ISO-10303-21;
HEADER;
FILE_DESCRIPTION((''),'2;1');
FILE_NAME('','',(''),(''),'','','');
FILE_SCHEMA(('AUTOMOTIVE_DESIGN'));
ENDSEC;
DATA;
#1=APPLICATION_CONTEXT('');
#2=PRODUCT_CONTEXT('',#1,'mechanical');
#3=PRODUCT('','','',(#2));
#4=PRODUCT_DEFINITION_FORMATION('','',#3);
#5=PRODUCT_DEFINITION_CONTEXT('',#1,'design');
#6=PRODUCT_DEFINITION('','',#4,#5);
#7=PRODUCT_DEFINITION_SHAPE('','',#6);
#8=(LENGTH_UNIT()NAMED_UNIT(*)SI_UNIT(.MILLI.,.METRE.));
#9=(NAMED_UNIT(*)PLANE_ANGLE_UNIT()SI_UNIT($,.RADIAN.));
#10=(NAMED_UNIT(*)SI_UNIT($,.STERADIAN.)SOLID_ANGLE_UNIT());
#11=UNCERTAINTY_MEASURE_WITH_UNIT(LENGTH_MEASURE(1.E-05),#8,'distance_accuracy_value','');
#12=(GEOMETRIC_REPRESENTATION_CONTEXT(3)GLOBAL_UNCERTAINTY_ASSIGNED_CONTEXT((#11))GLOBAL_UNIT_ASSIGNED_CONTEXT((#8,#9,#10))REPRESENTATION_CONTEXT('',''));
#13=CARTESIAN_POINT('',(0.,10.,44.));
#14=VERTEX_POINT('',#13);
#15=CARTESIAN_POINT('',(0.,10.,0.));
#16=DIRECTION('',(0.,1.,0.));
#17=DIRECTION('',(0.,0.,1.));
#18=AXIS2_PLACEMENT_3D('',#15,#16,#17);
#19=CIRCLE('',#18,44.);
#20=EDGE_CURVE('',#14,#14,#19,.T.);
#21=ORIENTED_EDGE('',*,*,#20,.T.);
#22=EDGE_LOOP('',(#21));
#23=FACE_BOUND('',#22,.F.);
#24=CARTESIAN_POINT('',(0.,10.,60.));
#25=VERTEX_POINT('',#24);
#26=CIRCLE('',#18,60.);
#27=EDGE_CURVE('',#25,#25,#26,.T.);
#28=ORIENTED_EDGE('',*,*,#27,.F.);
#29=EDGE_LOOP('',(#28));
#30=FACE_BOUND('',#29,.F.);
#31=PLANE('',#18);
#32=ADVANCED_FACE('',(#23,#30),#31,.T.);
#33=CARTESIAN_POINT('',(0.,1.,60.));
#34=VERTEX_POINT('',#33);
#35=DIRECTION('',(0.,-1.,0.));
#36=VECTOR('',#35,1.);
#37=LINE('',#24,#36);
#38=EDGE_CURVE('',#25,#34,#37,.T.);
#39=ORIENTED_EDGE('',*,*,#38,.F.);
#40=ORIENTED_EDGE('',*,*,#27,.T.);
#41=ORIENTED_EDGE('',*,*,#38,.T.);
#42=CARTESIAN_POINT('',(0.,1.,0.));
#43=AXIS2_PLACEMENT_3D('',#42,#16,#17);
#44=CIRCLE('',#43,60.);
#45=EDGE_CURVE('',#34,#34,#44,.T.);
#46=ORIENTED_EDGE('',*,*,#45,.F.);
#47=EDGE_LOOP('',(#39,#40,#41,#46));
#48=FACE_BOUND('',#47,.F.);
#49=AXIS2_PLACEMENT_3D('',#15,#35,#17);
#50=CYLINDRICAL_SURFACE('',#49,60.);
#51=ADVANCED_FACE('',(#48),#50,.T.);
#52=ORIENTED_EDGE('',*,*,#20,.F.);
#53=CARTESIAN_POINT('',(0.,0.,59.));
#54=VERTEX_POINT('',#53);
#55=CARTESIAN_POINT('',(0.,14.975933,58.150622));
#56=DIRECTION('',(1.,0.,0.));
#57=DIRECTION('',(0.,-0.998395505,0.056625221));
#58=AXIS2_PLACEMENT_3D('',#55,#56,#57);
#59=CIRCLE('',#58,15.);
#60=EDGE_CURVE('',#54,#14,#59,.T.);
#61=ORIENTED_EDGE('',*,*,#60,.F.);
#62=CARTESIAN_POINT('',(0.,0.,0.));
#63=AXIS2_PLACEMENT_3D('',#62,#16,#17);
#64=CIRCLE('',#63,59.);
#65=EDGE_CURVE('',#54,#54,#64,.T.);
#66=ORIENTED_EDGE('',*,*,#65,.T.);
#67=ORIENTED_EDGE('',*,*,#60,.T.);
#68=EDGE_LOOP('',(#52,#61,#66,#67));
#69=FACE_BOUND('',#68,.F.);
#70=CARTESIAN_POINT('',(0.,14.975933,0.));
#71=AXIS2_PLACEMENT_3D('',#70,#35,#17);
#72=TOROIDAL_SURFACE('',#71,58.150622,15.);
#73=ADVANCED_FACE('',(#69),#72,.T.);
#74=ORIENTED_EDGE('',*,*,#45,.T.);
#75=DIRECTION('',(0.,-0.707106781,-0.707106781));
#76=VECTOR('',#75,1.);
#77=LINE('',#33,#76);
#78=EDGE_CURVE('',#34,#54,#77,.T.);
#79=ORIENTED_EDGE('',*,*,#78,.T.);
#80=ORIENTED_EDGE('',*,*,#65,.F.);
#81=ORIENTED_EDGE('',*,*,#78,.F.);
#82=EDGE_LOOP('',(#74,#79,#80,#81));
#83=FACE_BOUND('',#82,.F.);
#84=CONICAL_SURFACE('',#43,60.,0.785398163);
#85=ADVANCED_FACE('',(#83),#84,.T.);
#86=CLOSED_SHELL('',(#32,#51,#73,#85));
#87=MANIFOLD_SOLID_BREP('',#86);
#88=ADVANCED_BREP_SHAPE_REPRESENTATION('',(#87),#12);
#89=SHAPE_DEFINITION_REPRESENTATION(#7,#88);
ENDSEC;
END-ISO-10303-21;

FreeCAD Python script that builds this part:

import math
import FreeCAD as App
import Part
import Sketcher

V = App.Vector
Q = App.Units.Quantity

doc = App.newDocument("Part")
body = doc.addObject("PartDesign::Body", "Body")

# Sketch on YZ plane
sketch1 = body.newObject("Sketcher::SketchObject", "Sketch")
sketch1.AttachmentSupport = (doc.getObject("YZ_Plane"), [""])
sketch1.MapMode = "FlatFace"
sketch1.addGeometry([
    Part.LineSegment(V(1, 60, 0), V(0, 59, 0)),
    Part.ArcOfCircle(Part.Circle(V(15, 58.2, 0), V(0, 0, 1), 15), math.radians(177), math.radians(251)),
    Part.LineSegment(V(10, 44, 0), V(10, 60, 0)),
    Part.LineSegment(V(10, 60, 0), V(1, 60, 0)),
], False)
sketch1.addConstraint([
    Sketcher.Constraint("Coincident", 0, 2, 1, 1),
    Sketcher.Constraint("Coincident", 1, 2, 2, 1),
    Sketcher.Constraint("Coincident", 2, 2, 3, 1),
    Sketcher.Constraint("Coincident", 3, 2, 0, 1),
    Sketcher.Constraint("Vertical", 2),
    Sketcher.Constraint("Horizontal", 3),
    Sketcher.Constraint("PointOnObject", 0, 2, -2),
    Sketcher.Constraint("Radius", 1, 15.0),
    Sketcher.Constraint("DistanceX", 3, 2, 3, 1, 9.0),
    Sketcher.Constraint("DistanceY", 2, 1, 2, 2, 16.0),
    Sketcher.Constraint("Angle", 0, Q("-135 deg")),
    Sketcher.Constraint("DistanceY", -1, 1, 0, 2, 59.0),
    Sketcher.Constraint("DistanceX", -1, 1, 1, 2, 10.0),
])
revolution = body.newObject("PartDesign::Revolution", "Revolution")
revolution.Profile = sketch1
revolution.ReferenceAxis = (sketch1, ["H_Axis"])
revolution.Angle = 360

doc.recompute()
